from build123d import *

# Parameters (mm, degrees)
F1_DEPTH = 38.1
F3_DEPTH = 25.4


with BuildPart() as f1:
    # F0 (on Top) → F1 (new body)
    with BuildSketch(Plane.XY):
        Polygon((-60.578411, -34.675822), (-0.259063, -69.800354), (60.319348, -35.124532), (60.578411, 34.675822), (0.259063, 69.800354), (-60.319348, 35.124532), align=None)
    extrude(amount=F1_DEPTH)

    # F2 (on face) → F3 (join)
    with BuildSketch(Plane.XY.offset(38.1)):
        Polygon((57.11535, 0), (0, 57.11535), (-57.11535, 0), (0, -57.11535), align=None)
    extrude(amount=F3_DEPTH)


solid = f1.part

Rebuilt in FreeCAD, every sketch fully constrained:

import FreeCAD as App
import Part
import Sketcher

doc = App.newDocument("Part")
params = doc.addObject("Spreadsheet::Sheet", "Params")
for row, (alias, value) in enumerate([
    ("pad1_length", "1.5 in"),
    ("pad2_length", "1 in"),
], start=1):
    params.set(f"A{row}", alias)
    params.set(f"B{row}", "=" + value)
    params.setAlias(f"B{row}", alias)

body = doc.addObject("PartDesign::Body", "Body")

sketch1 = body.newObject("Sketcher::SketchObject", "Sketch")
sketch1.AttachmentSupport = (doc.getObject("XY_Plane"), [""])
sketch1.MapMode = "FlatFace"
sketch1.addGeometry([
    Part.LineSegment(App.Vector(-61, -35, 0), App.Vector(0, -70, 0)),
    Part.LineSegment(App.Vector(0, -70, 0), App.Vector(60, -35, 0)),
    Part.LineSegment(App.Vector(60, -35, 0), App.Vector(61, 35, 0)),
    Part.LineSegment(App.Vector(61, 35, 0), App.Vector(0, 70, 0)),
    Part.LineSegment(App.Vector(0, 70, 0), App.Vector(-60, 35, 0)),
    Part.LineSegment(App.Vector(-60, 35, 0), App.Vector(-61, -35, 0)),
], False)
sketch1.addConstraint([
    Sketcher.Constraint("Coincident", 0, 2, 1, 1),
    Sketcher.Constraint("Coincident", 1, 2, 2, 1),
    Sketcher.Constraint("Coincident", 2, 2, 3, 1),
    Sketcher.Constraint("Coincident", 3, 2, 4, 1),
    Sketcher.Constraint("Coincident", 4, 2, 5, 1),
    Sketcher.Constraint("Coincident", 5, 2, 0, 1),
    Sketcher.Constraint("Symmetric", 0, 2, 3, 2, -1, 1),
    Sketcher.Constraint("Symmetric", 1, 2, 4, 2, -1, 1),
    Sketcher.Constraint("Symmetric", 2, 2, 5, 2, -1, 1),
    Sketcher.Constraint("Equal", 0, 1),
    Sketcher.Constraint("Equal", 1, 2),
    Sketcher.Constraint("DistanceX", -1, 1, 2, 2, 60.578411),
    Sketcher.Constraint("DistanceY", -1, 1, 2, 2, 34.675822),
    Sketcher.Constraint("DistanceX", 0, 2, 1, 2, 60.578411),
    Sketcher.Constraint("DistanceY", 0, 2, 1, 2, 34.675822),
])
pad1 = body.newObject("PartDesign::Pad", "Pad")
pad1.Profile = sketch1
pad1.setExpression("Length", "Params.pad1_length")

sketch2 = body.newObject("Sketcher::SketchObject", "Sketch001")
sketch2.AttachmentSupport = (doc.getObject("XY_Plane"), [""])
sketch2.MapMode = "FlatFace"
sketch2.AttachmentOffset = App.Placement(App.Vector(0, 0, 1.5 * 25.4), App.Rotation())
sketch2.addGeometry([
    Part.LineSegment(App.Vector(57, 0, 0), App.Vector(0, 57, 0)),
    Part.LineSegment(App.Vector(0, 57, 0), App.Vector(-57, 0, 0)),
    Part.LineSegment(App.Vector(-57, 0, 0), App.Vector(0, -57, 0)),
    Part.LineSegment(App.Vector(0, -57, 0), App.Vector(57, 0, 0)),
], False)
sketch2.addConstraint([
    Sketcher.Constraint("Coincident", 0, 2, 1, 1),
    Sketcher.Constraint("Coincident", 1, 2, 2, 1),
    Sketcher.Constraint("Coincident", 2, 2, 3, 1),
    Sketcher.Constraint("Coincident", 3, 2, 0, 1),
    Sketcher.Constraint("Symmetric", 0, 2, 2, 2, -1, 1),
    Sketcher.Constraint("Symmetric", 1, 2, 3, 2, -1, 1),
    Sketcher.Constraint("PointOnObject", 0, 2, -2),
    Sketcher.Constraint("PointOnObject", 1, 2, -1),
    Sketcher.Constraint("Perpendicular", 0, 1),
    Sketcher.Constraint("DistanceY", 2, 2, 0, 2, 114.2307),
])
pad2 = body.newObject("PartDesign::Pad", "Pad001")
pad2.Profile = sketch2
pad2.setExpression("Length", "Params.pad2_length")

doc.recompute()
